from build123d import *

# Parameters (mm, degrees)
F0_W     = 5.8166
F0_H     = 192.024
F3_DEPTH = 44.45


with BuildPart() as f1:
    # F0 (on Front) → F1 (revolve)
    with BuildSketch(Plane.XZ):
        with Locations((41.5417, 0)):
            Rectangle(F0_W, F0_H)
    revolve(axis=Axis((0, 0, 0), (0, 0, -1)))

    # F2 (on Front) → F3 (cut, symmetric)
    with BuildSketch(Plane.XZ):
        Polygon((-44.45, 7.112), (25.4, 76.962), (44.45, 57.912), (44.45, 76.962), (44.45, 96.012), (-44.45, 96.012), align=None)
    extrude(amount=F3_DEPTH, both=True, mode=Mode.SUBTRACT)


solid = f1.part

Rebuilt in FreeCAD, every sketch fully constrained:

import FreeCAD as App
import Part
import Sketcher
Q = App.Units.Quantity

doc = App.newDocument("Part")
body = doc.addObject("PartDesign::Body", "Body")

sketch1 = doc.addObject("Sketcher::SketchObject", "Sketch")
body.addObject(sketch1)
sketch1.AttachmentSupport = (doc.XZ_Plane, [""])
sketch1.MapMode = "FlatFace"
sketch1.addGeometry([
    Part.LineSegment(App.Vector(39, 96, 0), App.Vector(39, -96, 0)),
    Part.LineSegment(App.Vector(39, -96, 0), App.Vector(44, -96, 0)),
    Part.LineSegment(App.Vector(44, -96, 0), App.Vector(44, 96, 0)),
    Part.LineSegment(App.Vector(44, 96, 0), App.Vector(39, 96, 0)),
], False)
sketch1.addConstraint([
    Sketcher.Constraint("Coincident", 0, 2, 1, 1),
    Sketcher.Constraint("Coincident", 1, 2, 2, 1),
    Sketcher.Constraint("Coincident", 2, 2, 3, 1),
    Sketcher.Constraint("Coincident", 3, 2, 0, 1),
    Sketcher.Constraint("Vertical", 0),
    Sketcher.Constraint("Horizontal", 1),
    Sketcher.Constraint("Vertical", 2),
    Sketcher.Constraint("Horizontal", 3),
    Sketcher.Constraint("DistanceY", 0, 2, 0, 1, Q("7.56 in")),
    Sketcher.Constraint("DistanceX", 1, 1, 1, 2, Q("0.229 in")),
    Sketcher.Constraint("DistanceY", 0, 2, -1, 1, Q("3.78 in")),
    Sketcher.Constraint("DistanceX", -1, 1, 1, 2, Q("1.75 in")),
])
revolution = doc.addObject("PartDesign::Revolution", "Revolution")
body.addObject(revolution)
revolution.Profile = sketch1
revolution.ReferenceAxis = (sketch1, ["V_Axis"])
revolution.Angle = 360

sketch2 = doc.addObject("Sketcher::SketchObject", "Sketch001")
body.addObject(sketch2)
sketch2.AttachmentSupport = (doc.XZ_Plane, [""])
sketch2.MapMode = "FlatFace"
sketch2.addGeometry([
    Part.LineSegment(App.Vector(-44, 7, 0), App.Vector(25, 77, 0)),
    Part.LineSegment(App.Vector(25, 77, 0), App.Vector(44, 58, 0)),
    Part.LineSegment(App.Vector(44, 58, 0), App.Vector(44, 96, 0)),
    Part.LineSegment(App.Vector(44, 96, 0), App.Vector(-44, 96, 0)),
    Part.LineSegment(App.Vector(-44, 96, 0), App.Vector(-44, 7, 0)),
], False)
sketch2.addConstraint([
    Sketcher.Constraint("Coincident", 0, 2, 1, 1),
    Sketcher.Constraint("Coincident", 1, 2, 2, 1),
    Sketcher.Constraint("Coincident", 2, 2, 3, 1),
    Sketcher.Constraint("Coincident", 3, 2, 4, 1),
    Sketcher.Constraint("Coincident", 4, 2, 0, 1),
    Sketcher.Constraint("Vertical", 2),
    Sketcher.Constraint("Horizontal", 3),
    Sketcher.Constraint("Vertical", 4),
    Sketcher.Constraint("Perpendicular", 0, 1),
    Sketcher.Constraint("Equal", 3, 4),
    Sketcher.Constraint("DistanceX", 3, 2, 3, 1, Q("3.5 in")),
    Sketcher.Constraint("DistanceY", 2, 1, 2, 2, Q("1.5 in")),
    Sketcher.Constraint("DistanceX", -1, 1, 0, 2, Q("1 in")),
    Sketcher.Constraint("Angle", 0, Q("45 deg")),
    Sketcher.Constraint("DistanceY", -1, 1, 0, 2, Q("3.03 in")),
])
pocket1 = doc.addObject("PartDesign::Pocket", "Pocket")
body.addObject(pocket1)
pocket1.Profile = sketch2
pocket1.Length = Q("3.5 in")
pocket1.Midplane = True

doc.recompute()
